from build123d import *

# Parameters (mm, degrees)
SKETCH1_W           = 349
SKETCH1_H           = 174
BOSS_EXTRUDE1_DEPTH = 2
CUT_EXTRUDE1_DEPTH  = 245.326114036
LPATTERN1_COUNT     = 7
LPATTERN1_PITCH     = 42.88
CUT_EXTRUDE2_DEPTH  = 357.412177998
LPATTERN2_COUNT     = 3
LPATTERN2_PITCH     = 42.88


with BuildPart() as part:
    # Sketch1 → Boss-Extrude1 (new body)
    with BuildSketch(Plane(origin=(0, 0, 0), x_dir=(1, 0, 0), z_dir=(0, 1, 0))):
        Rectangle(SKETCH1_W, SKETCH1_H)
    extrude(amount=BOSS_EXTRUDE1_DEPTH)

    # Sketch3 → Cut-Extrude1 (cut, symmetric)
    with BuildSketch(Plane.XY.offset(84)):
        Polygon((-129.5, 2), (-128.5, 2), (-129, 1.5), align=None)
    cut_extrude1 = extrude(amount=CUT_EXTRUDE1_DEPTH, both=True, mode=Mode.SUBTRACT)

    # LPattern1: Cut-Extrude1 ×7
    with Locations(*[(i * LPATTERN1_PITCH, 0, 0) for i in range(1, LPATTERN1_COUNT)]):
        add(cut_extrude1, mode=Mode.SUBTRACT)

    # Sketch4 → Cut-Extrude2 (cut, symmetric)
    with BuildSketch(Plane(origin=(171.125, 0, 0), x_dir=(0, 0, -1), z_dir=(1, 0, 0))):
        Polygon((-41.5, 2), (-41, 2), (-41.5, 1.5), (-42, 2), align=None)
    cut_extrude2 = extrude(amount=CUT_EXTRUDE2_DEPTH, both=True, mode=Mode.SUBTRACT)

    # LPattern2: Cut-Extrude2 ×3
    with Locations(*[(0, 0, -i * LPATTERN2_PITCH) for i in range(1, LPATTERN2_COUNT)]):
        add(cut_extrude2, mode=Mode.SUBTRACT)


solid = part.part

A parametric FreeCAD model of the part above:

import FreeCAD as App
import Part
import Sketcher

V = App.Vector
Q = App.Units.Quantity


def add_polygon(sketch, points):
    """Adds a closed chain of lines whose ends are joined by coincident constraints."""
    first, n = sketch.GeometryCount, len(points)
    for a, b in zip(points, points[1:] + points[:1]):
        sketch.addGeometry(Part.LineSegment(App.Vector(*a, 0), App.Vector(*b, 0)), False)
    for i in range(n):
        sketch.addConstraint(Sketcher.Constraint("Coincident", first + i, 2, first + (i + 1) % n, 1))

doc = App.newDocument("Part")
body = doc.addObject("PartDesign::Body", "Body")

sketch1 = doc.addObject("Sketcher::SketchObject", "Sketch")
body.addObject(sketch1)
sketch1.AttachmentSupport = (doc.XZ_Plane, [""])
sketch1.MapMode = "FlatFace"
add_polygon(sketch1, [(-174.5, -87), (-174.5, 87), (174.5, 87), (174.5, -87)])
sketch1.addConstraint(Sketcher.Constraint("Vertical", 0))
sketch1.addConstraint(Sketcher.Constraint("Horizontal", 1))
sketch1.addConstraint(Sketcher.Constraint("Vertical", 2))
sketch1.addConstraint(Sketcher.Constraint("Horizontal", 3))
sketch1.addConstraint(Sketcher.Constraint("Symmetric", 0, 2, 2, 2, -1, 1))
sketch1.addConstraint(Sketcher.Constraint("DistanceX", 1, 1, 1, 2, Q("349 mm")))
sketch1.addConstraint(Sketcher.Constraint("DistanceY", 0, 1, 0, 2, Q("174 mm")))
pad1 = doc.addObject("PartDesign::Pad", "Pad")
body.addObject(pad1)
pad1.Profile = sketch1
pad1.Length = 2
pad1.Reversed = True

sketch2 = doc.addObject("Sketcher::SketchObject", "Sketch001")
body.addObject(sketch2)
sketch2.AttachmentSupport = (doc.XY_Plane, [""])
sketch2.MapMode = "FlatFace"
sketch2.AttachmentOffset = App.Placement(V(0, 0, 84), App.Rotation())
add_polygon(sketch2, [(-128.5, 2), (-129.5, 2), (-129, 1.5)])
sketch2.addConstraint(Sketcher.Constraint("Horizontal", 0))
sketch2.addConstraint(Sketcher.Constraint("Perpendicular", 1, 2))
sketch2.addConstraint(Sketcher.Constraint("Equal", 1, 2))
sketch2.addConstraint(Sketcher.Constraint("DistanceX", 0, 2, 0, 1, Q("1 mm")))
sketch2.addConstraint(Sketcher.Constraint("DistanceY", -1, 1, 0, 2, Q("2 mm")))
sketch2.addConstraint(Sketcher.Constraint("DistanceX", 1, 2, -1, 1, Q("129 mm")))
pocket1 = doc.addObject("PartDesign::Pocket", "Pocket")
body.addObject(pocket1)
pocket1.Profile = sketch2
pocket1.Length = 490.652228
pocket1.Midplane = True
doc.recompute()

linearpattern = doc.addObject("PartDesign::LinearPattern", "LinearPattern")
body.addObject(linearpattern)
linearpattern.Originals = [pocket1]
linearpattern.Direction = (doc.X_Axis, [""])
linearpattern.Mode = "offset"
linearpattern.Offset = 42.88
linearpattern.Occurrences = 7
body.Tip = linearpattern

sketch3 = doc.addObject("Sketcher::SketchObject", "Sketch002")
body.addObject(sketch3)
sketch3.AttachmentSupport = (doc.YZ_Plane, [""])
sketch3.MapMode = "FlatFace"
sketch3.AttachmentOffset = App.Placement(V(0, 0, 171.125), App.Rotation())
add_polygon(sketch3, [(2, 41), (2, 42), (1.5, 41.5)])
sketch3.addConstraint(Sketcher.Constraint("Vertical", 0))
sketch3.addConstraint(Sketcher.Constraint("Perpendicular", 1, 2))
sketch3.addConstraint(Sketcher.Constraint("Equal", 1, 2))
sketch3.addConstraint(Sketcher.Constraint("DistanceY", 0, 1, 0, 2, Q("1 mm")))
sketch3.addConstraint(Sketcher.Constraint("DistanceX", -1, 1, 0, 2, Q("2 mm")))
sketch3.addConstraint(Sketcher.Constraint("DistanceY", -1, 1, 0, 2, Q("42 mm")))
pocket2 = doc.addObject("PartDesign::Pocket", "Pocket001")
body.addObject(pocket2)
pocket2.Profile = sketch3
pocket2.Length = 714.824356
pocket2.Midplane = True
doc.recompute()

linearpattern2 = doc.addObject("PartDesign::LinearPattern", "LinearPattern001")
body.addObject(linearpattern2)
linearpattern2.Originals = [pocket2]
linearpattern2.Direction = (doc.Z_Axis, [""])
linearpattern2.Mode = "offset"
linearpattern2.Offset = 42.88
linearpattern2.Occurrences = 3
linearpattern2.Reversed = True
body.Tip = linearpattern2

doc.recompute()
